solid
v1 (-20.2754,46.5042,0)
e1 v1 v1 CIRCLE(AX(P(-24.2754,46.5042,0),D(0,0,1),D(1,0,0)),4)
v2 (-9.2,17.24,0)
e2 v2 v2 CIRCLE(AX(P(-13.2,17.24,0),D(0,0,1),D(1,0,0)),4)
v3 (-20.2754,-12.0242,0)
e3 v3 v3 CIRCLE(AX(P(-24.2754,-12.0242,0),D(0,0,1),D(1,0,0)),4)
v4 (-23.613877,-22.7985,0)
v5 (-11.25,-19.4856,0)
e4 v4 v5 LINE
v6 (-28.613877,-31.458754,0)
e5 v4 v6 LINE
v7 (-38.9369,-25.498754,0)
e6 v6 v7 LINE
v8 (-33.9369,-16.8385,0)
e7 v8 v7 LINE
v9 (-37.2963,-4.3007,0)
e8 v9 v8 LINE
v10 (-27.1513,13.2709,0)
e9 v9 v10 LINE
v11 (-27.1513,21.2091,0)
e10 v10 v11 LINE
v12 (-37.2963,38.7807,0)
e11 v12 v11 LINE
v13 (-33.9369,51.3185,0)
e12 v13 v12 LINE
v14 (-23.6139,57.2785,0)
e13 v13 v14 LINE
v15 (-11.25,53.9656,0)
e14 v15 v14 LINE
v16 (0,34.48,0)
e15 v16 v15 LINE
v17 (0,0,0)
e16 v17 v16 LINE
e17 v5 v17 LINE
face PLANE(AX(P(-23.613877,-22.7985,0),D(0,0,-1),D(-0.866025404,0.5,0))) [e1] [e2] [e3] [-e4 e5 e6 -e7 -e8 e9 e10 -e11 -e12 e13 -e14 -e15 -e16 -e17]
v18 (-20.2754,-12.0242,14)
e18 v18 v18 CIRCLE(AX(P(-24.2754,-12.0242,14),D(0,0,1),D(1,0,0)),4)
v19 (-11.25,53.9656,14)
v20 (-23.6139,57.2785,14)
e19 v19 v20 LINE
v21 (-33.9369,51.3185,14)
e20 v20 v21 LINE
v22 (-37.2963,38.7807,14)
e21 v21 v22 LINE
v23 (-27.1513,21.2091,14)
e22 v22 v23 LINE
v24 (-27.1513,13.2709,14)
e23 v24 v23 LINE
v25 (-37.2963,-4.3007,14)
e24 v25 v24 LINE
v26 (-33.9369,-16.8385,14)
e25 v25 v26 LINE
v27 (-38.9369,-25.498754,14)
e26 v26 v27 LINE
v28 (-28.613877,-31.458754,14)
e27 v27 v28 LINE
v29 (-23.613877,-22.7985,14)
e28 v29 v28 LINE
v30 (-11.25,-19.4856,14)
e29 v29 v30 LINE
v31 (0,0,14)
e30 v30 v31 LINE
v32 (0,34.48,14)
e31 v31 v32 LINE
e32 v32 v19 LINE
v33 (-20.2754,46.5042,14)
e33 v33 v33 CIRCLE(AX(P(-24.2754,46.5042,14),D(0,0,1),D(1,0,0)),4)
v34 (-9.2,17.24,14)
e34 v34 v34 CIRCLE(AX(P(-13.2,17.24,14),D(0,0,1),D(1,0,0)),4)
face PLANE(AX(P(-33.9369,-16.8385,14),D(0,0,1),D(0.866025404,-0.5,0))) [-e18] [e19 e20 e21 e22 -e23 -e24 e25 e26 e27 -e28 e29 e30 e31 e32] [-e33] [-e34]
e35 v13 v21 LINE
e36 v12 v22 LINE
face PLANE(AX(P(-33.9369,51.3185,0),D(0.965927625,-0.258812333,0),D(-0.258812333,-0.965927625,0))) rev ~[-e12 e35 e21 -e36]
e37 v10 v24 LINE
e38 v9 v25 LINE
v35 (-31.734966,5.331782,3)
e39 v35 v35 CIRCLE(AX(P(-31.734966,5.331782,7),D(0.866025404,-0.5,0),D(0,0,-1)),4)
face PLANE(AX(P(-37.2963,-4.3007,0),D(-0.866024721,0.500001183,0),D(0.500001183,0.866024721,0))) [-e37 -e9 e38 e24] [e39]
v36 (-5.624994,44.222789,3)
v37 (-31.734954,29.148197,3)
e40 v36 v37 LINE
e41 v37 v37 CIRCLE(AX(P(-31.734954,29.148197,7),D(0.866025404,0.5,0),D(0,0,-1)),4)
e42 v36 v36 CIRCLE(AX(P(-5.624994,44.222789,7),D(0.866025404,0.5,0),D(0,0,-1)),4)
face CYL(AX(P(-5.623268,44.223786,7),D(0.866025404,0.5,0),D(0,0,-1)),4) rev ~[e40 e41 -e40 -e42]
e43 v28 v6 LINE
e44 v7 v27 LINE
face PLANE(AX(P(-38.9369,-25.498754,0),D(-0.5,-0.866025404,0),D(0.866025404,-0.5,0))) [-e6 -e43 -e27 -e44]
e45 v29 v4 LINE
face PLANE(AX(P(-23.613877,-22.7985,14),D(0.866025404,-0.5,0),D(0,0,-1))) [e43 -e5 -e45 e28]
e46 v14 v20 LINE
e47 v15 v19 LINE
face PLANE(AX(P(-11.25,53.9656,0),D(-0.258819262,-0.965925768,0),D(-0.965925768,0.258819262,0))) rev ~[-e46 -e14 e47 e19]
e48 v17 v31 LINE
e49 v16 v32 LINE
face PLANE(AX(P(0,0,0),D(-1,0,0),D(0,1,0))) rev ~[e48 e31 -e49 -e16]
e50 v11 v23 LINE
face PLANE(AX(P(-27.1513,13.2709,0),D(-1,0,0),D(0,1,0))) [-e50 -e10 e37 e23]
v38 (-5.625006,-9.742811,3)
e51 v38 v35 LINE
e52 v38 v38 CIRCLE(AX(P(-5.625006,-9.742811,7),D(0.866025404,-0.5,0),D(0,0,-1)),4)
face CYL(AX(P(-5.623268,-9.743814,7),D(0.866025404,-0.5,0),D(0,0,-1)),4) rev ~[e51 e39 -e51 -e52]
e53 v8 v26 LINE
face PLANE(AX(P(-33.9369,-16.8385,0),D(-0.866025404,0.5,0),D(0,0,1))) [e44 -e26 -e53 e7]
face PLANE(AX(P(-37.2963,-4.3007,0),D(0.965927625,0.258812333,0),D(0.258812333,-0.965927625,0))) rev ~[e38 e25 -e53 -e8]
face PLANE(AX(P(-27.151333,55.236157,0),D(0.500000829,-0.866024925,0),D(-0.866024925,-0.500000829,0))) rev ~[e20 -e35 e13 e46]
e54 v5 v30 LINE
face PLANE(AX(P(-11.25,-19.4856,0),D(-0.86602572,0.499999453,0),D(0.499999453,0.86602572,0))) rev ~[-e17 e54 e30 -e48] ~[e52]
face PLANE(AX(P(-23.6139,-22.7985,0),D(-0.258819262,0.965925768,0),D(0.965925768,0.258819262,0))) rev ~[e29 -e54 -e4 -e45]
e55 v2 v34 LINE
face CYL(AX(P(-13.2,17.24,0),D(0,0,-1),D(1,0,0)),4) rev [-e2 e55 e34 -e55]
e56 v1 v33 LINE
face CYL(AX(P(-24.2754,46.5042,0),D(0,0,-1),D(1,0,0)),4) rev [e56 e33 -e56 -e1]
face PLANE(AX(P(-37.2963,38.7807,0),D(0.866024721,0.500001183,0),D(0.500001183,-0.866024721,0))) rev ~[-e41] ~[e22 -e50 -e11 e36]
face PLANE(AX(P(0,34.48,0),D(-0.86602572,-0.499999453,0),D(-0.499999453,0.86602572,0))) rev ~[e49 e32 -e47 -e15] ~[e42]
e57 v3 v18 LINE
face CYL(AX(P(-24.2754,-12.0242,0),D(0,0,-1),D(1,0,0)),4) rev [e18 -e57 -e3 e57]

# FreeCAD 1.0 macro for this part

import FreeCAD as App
import Part
import Sketcher
Q = App.Units.Quantity


def add_polygon(sketch, points):
    """Adds a closed chain of lines whose ends are joined by coincident constraints."""
    first, n = sketch.GeometryCount, len(points)
    for a, b in zip(points, points[1:] + points[:1]):
        sketch.addGeometry(Part.LineSegment(App.Vector(*a, 0), App.Vector(*b, 0)), False)
    for i in range(n):
        sketch.addConstraint(Sketcher.Constraint("Coincident", first + i, 2, first + (i + 1) % n, 1))

doc = App.newDocument("Part")
params = doc.addObject("Spreadsheet::Sheet", "Params")
for row, (alias, value) in enumerate([
    ("sketch1_diameter", "8 mm"),
    ("sketch1_length", "22.5 mm"),
    ("sketch1_length2", "12.8 mm"),
    ("sketch1_height", "34.48 mm"),
    ("sketch1_length3", "11.92 mm"),
    ("pad1_length", "14 mm"),
    ("sketch2_diameter", "8 mm"),
    ("pocket1_length", "40 mm"),
    ("sketch3_diameter", "8 mm"),
    ("pocket2_length", "40 mm"),
    ("sketch4_height", "14 mm"),
    ("sketch4_width", "11.92 mm"),
    ("pad2_length", "10 mm"),
], start=1):
    params.set(f"A{row}", alias)
    params.set(f"B{row}", "=" + value)
    params.setAlias(f"B{row}", alias)

body = doc.addObject("PartDesign::Body", "Body")

# Sketch on XY plane
sketch1 = body.newObject("Sketcher::SketchObject", "Sketch")
sketch1.AttachmentSupport = (doc.getObject("XY_Plane"), [""])
sketch1.MapMode = "FlatFace"
add_polygon(sketch1, [(-11.2, -19.5), (0, 0), (0, 34.5), (-11.2, 54), (-23.6, 57.3), (-33.9, 51.3), (-37.3, 38.8), (-27.2, 21.2), (-27.2, 13.3), (-37.3, -4.3), (-33.9, -16.8), (-23.6, -22.8)])  # lines 0-11
sketch1.addGeometry(Part.Circle(App.Vector(-24.3, -12, 0), App.Vector(0, 0, 1), 4), False)  # 12
sketch1.addGeometry(Part.Circle(App.Vector(-24.3, 46.5, 0), App.Vector(0, 0, 1), 4), False)  # 13
sketch1.addGeometry(Part.Circle(App.Vector(-13.2, 17.2, 0), App.Vector(0, 0, 1), 4), False)  # 14
sketch1.addConstraint([
    Sketcher.Constraint("Vertical", 1),
    Sketcher.Constraint("Vertical", 7),
    Sketcher.Constraint("Coincident", 0, 2, -1, 1),
    Sketcher.Constraint("Equal", 12, 13),
    Sketcher.Constraint("Equal", 13, 14),
    Sketcher.Constraint("Perpendicular", 2, 4),
    Sketcher.Constraint("Perpendicular", 3, 5),
    Sketcher.Constraint("Perpendicular", 4, 6),
    Sketcher.Constraint("Parallel", 0, 8),
    Sketcher.Constraint("Perpendicular", 8, 10),
    Sketcher.Constraint("Perpendicular", 9, 11),
    Sketcher.Constraint("Vertical", 12, 3, 13, 3),
    Sketcher.Constraint("Vertical", 5, 2, 8, 2),
    Sketcher.Constraint("Vertical", 4, 2, 9, 2),
    Sketcher.Constraint("Vertical", 3, 2, 10, 2),
    Sketcher.Constraint("Vertical", 2, 2, 11, 2),
    Sketcher.Constraint("Equal", 0, 2),
    Sketcher.Constraint("Equal", 5, 9),
    Sketcher.Constraint("Diameter", 12, 8.0),
    Sketcher.Constraint("Angle", 4, Q("-150 deg")),
    Sketcher.Constraint("Distance", 0, 22.5),
    Sketcher.Constraint("Distance", 3, 12.8),
    Sketcher.Constraint("DistanceY", 1, 1, 1, 2, 34.48),
    Sketcher.Constraint("DistanceX", 14, 3, -1, 1, 13.2),
    Sketcher.Constraint("Distance", 4, 11.92),
    Sketcher.Constraint("Distance", 5, 12.98),
    Sketcher.Constraint("Distance", 6, 20.29),
    Sketcher.Constraint("Angle", 3, Q("165 deg")),
    Sketcher.Constraint("DistanceY", -1, 1, 14, 3, 17.24),
    Sketcher.Constraint("DistanceX", 5, 2, 13, 3, 13.021),
    Sketcher.Constraint("DistanceY", 6, 2, 13, 3, 25.295),
    Sketcher.Constraint("DistanceY", 12, 3, 7, 2, 25.295),
])
sketch1.setExpression("Constraints[30]", "Params.sketch1_diameter")
sketch1.setExpression("Constraints[32]", "Params.sketch1_length")
sketch1.setExpression("Constraints[33]", "Params.sketch1_length2")
sketch1.setExpression("Constraints[34]", "Params.sketch1_height")
sketch1.setExpression("Constraints[36]", "Params.sketch1_length3")
pad1 = body.newObject("PartDesign::Pad", "Pad")
pad1.Profile = sketch1
pad1.setExpression("Length", "Params.pad1_length")

# Sketch on an angled plane
sketch2 = body.newObject("Sketcher::SketchObject", "Sketch001")
sketch2.Placement = App.Placement(App.Vector(0, 34.48, 14), App.Rotation(App.Vector(0, 0, -1), App.Vector(-0.5, 0.866025404, 0), App.Vector(0.866025404, 0.5, 0), "ZXY"))
sketch2.addGeometry(Part.Circle(App.Vector(7, 11.3, 0), App.Vector(0, 0, 1), 4), False)
sketch2.addConstraint([
    Sketcher.Constraint("Diameter", 0, 8.0),
    Sketcher.Constraint("DistanceX", -1, 1, 0, 3, 7.0),
    Sketcher.Constraint("DistanceY", -1, 1, 0, 3, 11.25),
])
sketch2.setExpression("Constraints[0]", "Params.sketch2_diameter")
pocket1 = body.newObject("PartDesign::Pocket", "Pocket")
pocket1.Profile = sketch2
pocket1.setExpression("Length", "Params.pocket1_length")

# Sketch on an angled plane
sketch3 = body.newObject("Sketcher::SketchObject", "Sketch002")
sketch3.Placement = App.Placement(App.Vector(-11.25, -19.4856, 14), App.Rotation(App.Vector(0, 0, -1), App.Vector(0.5, 0.866025404, 0), App.Vector(0.866025404, -0.5, 0), "ZXY"))
sketch3.addGeometry(Part.Circle(App.Vector(7, 11.3, 0), App.Vector(0, 0, 1), 4), False)
sketch3.addConstraint([
    Sketcher.Constraint("Diameter", 0, 8.0),
    Sketcher.Constraint("DistanceX", -1, 1, 0, 3, 7.0),
    Sketcher.Constraint("DistanceY", -1, 1, 0, 3, 11.25),
])
sketch3.setExpression("Constraints[0]", "Params.sketch3_diameter")
pocket2 = body.newObject("PartDesign::Pocket", "Pocket001")
pocket2.Profile = sketch3
pocket2.setExpression("Length", "Params.pocket2_length")

# Sketch on an angled plane
sketch4 = body.newObject("Sketcher::SketchObject", "Sketch003")
sketch4.Placement = App.Placement(App.Vector(-33.9369, -16.8385, 0), App.Rotation(App.Vector(0.866025404, -0.5, 0), App.Vector(0, 0, 1), App.Vector(-0.5, -0.866025404, 0), "ZXY"))
add_polygon(sketch4, [(0, 0), (12, 0), (12, 14), (0, 14)])  # lines 0-3
sketch4.addConstraint([
    Sketcher.Constraint("Horizontal", 0),
    Sketcher.Constraint("Vertical", 1),
    Sketcher.Constraint("Horizontal", 2),
    Sketcher.Constraint("Vertical", 3),
    Sketcher.Constraint("Coincident", 3, 2, -1, 1),
    Sketcher.Constraint("DistanceY", 1, 1, 1, 2, 14.0),
    Sketcher.Constraint("DistanceX", 0, 1, 0, 2, 11.92),
])
sketch4.setExpression("Constraints[9]", "Params.sketch4_height")
sketch4.setExpression("Constraints[10]", "Params.sketch4_width")
pad2 = body.newObject("PartDesign::Pad", "Pad001")
pad2.Profile = sketch4
pad2.setExpression("Length", "Params.pad2_length")

doc.recompute()
